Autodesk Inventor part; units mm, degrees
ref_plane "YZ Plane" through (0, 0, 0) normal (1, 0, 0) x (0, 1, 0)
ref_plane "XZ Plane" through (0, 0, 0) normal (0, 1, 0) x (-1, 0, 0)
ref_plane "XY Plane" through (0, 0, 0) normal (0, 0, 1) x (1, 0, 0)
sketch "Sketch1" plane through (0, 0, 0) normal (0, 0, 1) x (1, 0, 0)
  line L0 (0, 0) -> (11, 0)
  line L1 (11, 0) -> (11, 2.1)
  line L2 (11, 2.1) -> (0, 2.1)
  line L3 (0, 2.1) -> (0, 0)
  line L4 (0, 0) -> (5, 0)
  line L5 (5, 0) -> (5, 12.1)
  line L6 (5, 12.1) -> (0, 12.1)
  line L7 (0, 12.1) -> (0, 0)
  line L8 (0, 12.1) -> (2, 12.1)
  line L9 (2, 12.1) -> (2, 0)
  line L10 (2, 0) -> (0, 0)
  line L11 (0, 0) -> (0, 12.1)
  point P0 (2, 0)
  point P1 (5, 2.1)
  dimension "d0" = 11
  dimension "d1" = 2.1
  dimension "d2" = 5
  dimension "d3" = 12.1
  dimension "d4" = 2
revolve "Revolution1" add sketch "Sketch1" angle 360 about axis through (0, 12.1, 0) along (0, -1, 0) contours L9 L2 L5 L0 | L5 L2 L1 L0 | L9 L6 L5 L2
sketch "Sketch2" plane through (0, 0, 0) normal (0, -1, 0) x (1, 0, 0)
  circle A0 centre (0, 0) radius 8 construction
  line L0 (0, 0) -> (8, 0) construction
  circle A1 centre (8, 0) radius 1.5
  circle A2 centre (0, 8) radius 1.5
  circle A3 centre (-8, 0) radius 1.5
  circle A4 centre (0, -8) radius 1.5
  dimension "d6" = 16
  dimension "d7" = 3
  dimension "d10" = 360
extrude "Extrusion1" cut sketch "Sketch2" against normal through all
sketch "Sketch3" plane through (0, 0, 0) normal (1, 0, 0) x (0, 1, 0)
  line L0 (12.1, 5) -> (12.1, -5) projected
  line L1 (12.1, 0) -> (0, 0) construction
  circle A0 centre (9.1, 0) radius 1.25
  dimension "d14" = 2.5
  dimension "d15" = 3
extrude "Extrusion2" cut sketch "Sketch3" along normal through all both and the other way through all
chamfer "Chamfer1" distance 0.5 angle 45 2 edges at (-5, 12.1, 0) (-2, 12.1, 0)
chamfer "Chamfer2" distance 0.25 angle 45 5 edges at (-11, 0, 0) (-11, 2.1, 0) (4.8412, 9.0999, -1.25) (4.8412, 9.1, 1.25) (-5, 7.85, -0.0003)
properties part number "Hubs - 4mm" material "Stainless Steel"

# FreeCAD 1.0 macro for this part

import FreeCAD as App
import Part
import Sketcher

V = App.Vector


def edges_at(feature, points):
    """Names of the edges that pass closest to the given points."""
    edges = feature.Shape.Edges
    near = lambda p: min(range(len(edges)), key=lambda i: edges[i].distToShape(Part.Vertex(*p))[0])
    return sorted({f"Edge{near(p) + 1}" for p in points})

doc = App.newDocument("Part")
body = doc.addObject("PartDesign::Body", "Body")

sketch1 = doc.addObject("Sketcher::SketchObject", "Sketch")
body.addObject(sketch1)
sketch1.AttachmentSupport = (doc.XY_Plane, [""])
sketch1.MapMode = "FlatFace"
sketch1.addGeometry(Part.LineSegment(V(2, 0, 0), V(11, 0, 0)), False)
sketch1.addGeometry(Part.LineSegment(V(11, 0, 0), V(11, 2.1, 0)), False)
sketch1.addGeometry(Part.LineSegment(V(11, 2.1, 0), V(5, 2.1, 0)), False)
sketch1.addGeometry(Part.LineSegment(V(5, 2.1, 0), V(5, 12.1, 0)), False)
sketch1.addGeometry(Part.LineSegment(V(5, 12.1, 0), V(2, 12.1, 0)), False)
sketch1.addGeometry(Part.LineSegment(V(2, 12.1, 0), V(2, 0, 0)), False)
sketch1.addConstraint(Sketcher.Constraint("Coincident", 0, 2, 1, 1))
sketch1.addConstraint(Sketcher.Constraint("Coincident", 1, 2, 2, 1))
sketch1.addConstraint(Sketcher.Constraint("Coincident", 2, 2, 3, 1))
sketch1.addConstraint(Sketcher.Constraint("Coincident", 3, 2, 4, 1))
sketch1.addConstraint(Sketcher.Constraint("Coincident", 4, 2, 5, 1))
sketch1.addConstraint(Sketcher.Constraint("Coincident", 5, 2, 0, 1))
sketch1.addConstraint(Sketcher.Constraint("Horizontal", 0))
sketch1.addConstraint(Sketcher.Constraint("Vertical", 1))
sketch1.addConstraint(Sketcher.Constraint("Horizontal", 2))
sketch1.addConstraint(Sketcher.Constraint("Vertical", 3))
sketch1.addConstraint(Sketcher.Constraint("Horizontal", 4))
sketch1.addConstraint(Sketcher.Constraint("Vertical", 5))
sketch1.addConstraint(Sketcher.Constraint("PointOnObject", 0, 2, -1))
sketch1.addConstraint(Sketcher.Constraint("DistanceY", 1, 1, 1, 2, 2.1))
sketch1.addConstraint(Sketcher.Constraint("DistanceY", 5, 2, 5, 1, 12.1))
sketch1.addConstraint(Sketcher.Constraint("DistanceX", -1, 1, 0, 2, 11.0))
sketch1.addConstraint(Sketcher.Constraint("DistanceX", -1, 1, 2, 2, 5.0))
sketch1.addConstraint(Sketcher.Constraint("DistanceX", -1, 1, 4, 2, 2.0))
revolution = doc.addObject("PartDesign::Revolution", "Revolution")
body.addObject(revolution)
revolution.Profile = sketch1
revolution.ReferenceAxis = (sketch1, ["V_Axis"])
revolution.Angle = 360

sketch2 = doc.addObject("Sketcher::SketchObject", "Sketch001")
body.addObject(sketch2)
sketch2.AttachmentSupport = (doc.XZ_Plane, [""])
sketch2.MapMode = "FlatFace"
sketch2.addGeometry(Part.Circle(V(8, 0, 0), V(0, 0, 1), 1.5), False)
sketch2.addGeometry(Part.Circle(V(0, 8, 0), V(0, 0, 1), 1.5), False)
sketch2.addGeometry(Part.Circle(V(-8, 0, 0), V(0, 0, 1), 1.5), False)
sketch2.addGeometry(Part.Circle(V(0, -8, 0), V(0, 0, 1), 1.5), False)
sketch2.addConstraint(Sketcher.Constraint("Equal", 0, 1))
sketch2.addConstraint(Sketcher.Constraint("Equal", 1, 2))
sketch2.addConstraint(Sketcher.Constraint("Equal", 2, 3))
sketch2.addConstraint(Sketcher.Constraint("Symmetric", 0, 3, 2, 3, -1, 1))
sketch2.addConstraint(Sketcher.Constraint("Symmetric", 1, 3, 3, 3, -1, 1))
sketch2.addConstraint(Sketcher.Constraint("PointOnObject", 0, 3, -1))
sketch2.addConstraint(Sketcher.Constraint("PointOnObject", 1, 3, -2))
sketch2.addConstraint(Sketcher.Constraint("Diameter", 0, 3.0))
sketch2.addConstraint(Sketcher.Constraint("DistanceX", 2, 3, 0, 3, 16.0))
sketch2.addConstraint(Sketcher.Constraint("DistanceY", 3, 3, 1, 3, 16.0))
pocket1 = doc.addObject("PartDesign::Pocket", "Pocket")
body.addObject(pocket1)
pocket1.Profile = sketch2
pocket1.Type = "ThroughAll"

sketch3 = doc.addObject("Sketcher::SketchObject", "Sketch002")
body.addObject(sketch3)
sketch3.AttachmentSupport = (doc.YZ_Plane, [""])
sketch3.MapMode = "FlatFace"
sketch3.addGeometry(Part.Circle(V(9.1, 0, 0), V(0, 0, 1), 1.2), False)
sketch3.addConstraint(Sketcher.Constraint("PointOnObject", 0, 3, -1))
sketch3.addConstraint(Sketcher.Constraint("Diameter", 0, 2.5))
sketch3.addConstraint(Sketcher.Constraint("DistanceX", -1, 1, 0, 3, 9.1))
pocket2 = doc.addObject("PartDesign::Pocket", "Pocket001")
body.addObject(pocket2)
pocket2.Profile = sketch3
pocket2.Type = "ThroughAll"
pocket2.Midplane = True
doc.recompute()

chamfer = doc.addObject("PartDesign::Chamfer", "Chamfer")
body.addObject(chamfer)
chamfer.Base = (pocket2, edges_at(pocket2, [(-5, 12.1, 0), (-2, 12.1, 0)]))
chamfer.Size = 0.5
doc.recompute()

chamfer2 = doc.addObject("PartDesign::Chamfer", "Chamfer001")
body.addObject(chamfer2)
chamfer2.Base = (chamfer, edges_at(chamfer, [
    (-11, 0, 0),
    (-11, 2.1, 0),
    (4.841, 9.1, -1.25),
    (4.841, 9.1, 1.25),
    (-5, 7.85, 0),
]))
chamfer2.Size = 0.25

doc.recompute()
